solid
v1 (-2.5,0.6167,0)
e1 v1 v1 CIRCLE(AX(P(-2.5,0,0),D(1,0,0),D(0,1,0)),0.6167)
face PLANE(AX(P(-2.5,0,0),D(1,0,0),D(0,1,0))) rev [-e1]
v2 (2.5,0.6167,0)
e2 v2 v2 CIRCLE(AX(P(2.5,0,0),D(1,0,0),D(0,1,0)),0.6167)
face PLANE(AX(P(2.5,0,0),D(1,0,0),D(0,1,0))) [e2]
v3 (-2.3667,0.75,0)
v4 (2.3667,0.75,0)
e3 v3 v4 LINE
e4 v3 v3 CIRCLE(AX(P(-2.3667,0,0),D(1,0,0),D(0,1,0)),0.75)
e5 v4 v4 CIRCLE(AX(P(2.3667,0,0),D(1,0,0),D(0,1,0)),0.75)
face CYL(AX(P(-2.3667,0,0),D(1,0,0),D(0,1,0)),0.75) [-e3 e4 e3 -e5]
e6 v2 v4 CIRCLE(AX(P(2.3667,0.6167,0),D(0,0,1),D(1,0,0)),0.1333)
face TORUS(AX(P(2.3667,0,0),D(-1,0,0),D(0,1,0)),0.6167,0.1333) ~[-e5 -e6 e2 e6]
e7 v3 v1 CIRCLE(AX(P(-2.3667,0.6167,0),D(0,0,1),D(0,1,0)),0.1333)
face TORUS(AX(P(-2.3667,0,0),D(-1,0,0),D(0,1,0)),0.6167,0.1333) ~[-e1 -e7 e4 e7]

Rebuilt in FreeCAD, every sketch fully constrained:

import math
import FreeCAD as App
import Part
import Sketcher

V = App.Vector

doc = App.newDocument("Part")
params = doc.addObject("Spreadsheet::Sheet", "Params")
for row, (alias, value) in enumerate([
    ("sketch1_width", "5 mm"),
    ("revolution_angle", "360 deg"),
], start=1):
    params.set(f"A{row}", alias)
    params.set(f"B{row}", "=" + value)
    params.setAlias(f"B{row}", alias)

body = doc.addObject("PartDesign::Body", "Body")

# Sketch on XY plane
sketch1 = body.newObject("Sketcher::SketchObject", "Sketch")
sketch1.AttachmentSupport = (doc.getObject("XY_Plane"), [""])
sketch1.MapMode = "FlatFace"
sketch1.addGeometry(Part.LineSegment(V(-2.5, 0, 0), V(2.5, 0, 0)), False)
sketch1.addGeometry(Part.LineSegment(V(2.5, 0, 0), V(2.5, 0.62, 0)), False)
sketch1.addGeometry(Part.ArcOfCircle(Part.Circle(V(2.37, 0.62, 0), V(0, 0, 1), 0.13), math.radians(0), math.radians(90)), False)
sketch1.addGeometry(Part.LineSegment(V(2.37, 0.75, 0), V(-2.37, 0.75, 0)), False)
sketch1.addGeometry(Part.ArcOfCircle(Part.Circle(V(-2.37, 0.62, 0), V(0, 0, 1), 0.13), math.radians(90), math.radians(180)), False)
sketch1.addGeometry(Part.LineSegment(V(-2.5, 0.62, 0), V(-2.5, 0, 0)), False)
sketch1.addConstraint(Sketcher.Constraint("Coincident", 0, 2, 1, 1))
sketch1.addConstraint(Sketcher.Constraint("Tangent", 1, 2, 2, 1))
sketch1.addConstraint(Sketcher.Constraint("Tangent", 2, 2, 3, 1))
sketch1.addConstraint(Sketcher.Constraint("Tangent", 3, 2, 4, 1))
sketch1.addConstraint(Sketcher.Constraint("Tangent", 4, 2, 5, 1))
sketch1.addConstraint(Sketcher.Constraint("Coincident", 5, 2, 0, 1))
sketch1.addConstraint(Sketcher.Constraint("Horizontal", 0))
sketch1.addConstraint(Sketcher.Constraint("Vertical", 1))
sketch1.addConstraint(Sketcher.Constraint("Horizontal", 3))
sketch1.addConstraint(Sketcher.Constraint("Vertical", 5))
sketch1.addConstraint(Sketcher.Constraint("Equal", 2, 4))
sketch1.addConstraint(Sketcher.Constraint("Symmetric", 0, 2, 5, 2, -1, 1))
sketch1.addConstraint(Sketcher.Constraint("DistanceX", 0, 1, 0, 2, 5.0))
sketch1.addConstraint(Sketcher.Constraint("Radius", 2, 0.1333))
sketch1.addConstraint(Sketcher.Constraint("DistanceY", -1, 1, 2, 2, 0.75))
sketch1.setExpression("Constraints[12]", "Params.sketch1_width")
revolution = body.newObject("PartDesign::Revolution", "Revolution")
revolution.Profile = sketch1
revolution.ReferenceAxis = (sketch1, ["H_Axis"])
revolution.setExpression("Angle", "Params.revolution_angle")

doc.recompute()
